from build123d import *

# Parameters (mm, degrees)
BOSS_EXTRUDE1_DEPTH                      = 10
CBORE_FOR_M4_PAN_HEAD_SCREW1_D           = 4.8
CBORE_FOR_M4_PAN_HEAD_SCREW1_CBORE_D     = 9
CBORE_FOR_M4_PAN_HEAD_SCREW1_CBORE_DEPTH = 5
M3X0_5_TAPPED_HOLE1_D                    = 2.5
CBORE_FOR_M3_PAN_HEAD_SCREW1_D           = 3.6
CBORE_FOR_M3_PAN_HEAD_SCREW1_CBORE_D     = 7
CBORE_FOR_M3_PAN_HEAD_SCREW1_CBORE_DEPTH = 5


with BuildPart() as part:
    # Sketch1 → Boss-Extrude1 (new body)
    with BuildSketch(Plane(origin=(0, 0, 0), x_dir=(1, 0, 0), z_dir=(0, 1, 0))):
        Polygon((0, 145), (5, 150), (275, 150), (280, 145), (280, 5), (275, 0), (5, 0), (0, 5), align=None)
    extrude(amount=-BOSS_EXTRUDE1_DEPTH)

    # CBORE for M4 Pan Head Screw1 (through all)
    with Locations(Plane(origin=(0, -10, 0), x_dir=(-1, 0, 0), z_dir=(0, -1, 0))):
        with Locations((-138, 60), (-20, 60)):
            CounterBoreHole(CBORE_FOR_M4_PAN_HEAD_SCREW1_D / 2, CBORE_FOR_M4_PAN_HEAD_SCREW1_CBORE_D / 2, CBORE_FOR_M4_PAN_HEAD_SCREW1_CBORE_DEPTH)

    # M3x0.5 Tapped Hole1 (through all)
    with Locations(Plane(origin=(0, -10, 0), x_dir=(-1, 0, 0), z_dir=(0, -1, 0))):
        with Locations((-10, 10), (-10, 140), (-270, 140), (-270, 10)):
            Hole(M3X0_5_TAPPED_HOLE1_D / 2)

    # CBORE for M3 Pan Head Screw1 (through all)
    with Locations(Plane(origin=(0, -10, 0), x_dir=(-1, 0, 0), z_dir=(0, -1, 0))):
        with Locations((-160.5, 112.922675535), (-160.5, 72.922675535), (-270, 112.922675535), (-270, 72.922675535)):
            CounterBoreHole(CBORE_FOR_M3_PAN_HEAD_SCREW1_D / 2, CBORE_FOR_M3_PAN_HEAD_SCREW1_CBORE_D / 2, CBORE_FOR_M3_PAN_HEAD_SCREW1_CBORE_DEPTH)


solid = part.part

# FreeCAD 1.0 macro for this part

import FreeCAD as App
import Part
import Sketcher
from FreeCAD import Vector
Q = App.Units.Quantity


def add_polygon(sketch, points):
    """Adds a closed chain of lines whose ends are joined by coincident constraints."""
    first, n = sketch.GeometryCount, len(points)
    for a, b in zip(points, points[1:] + points[:1]):
        sketch.addGeometry(Part.LineSegment(App.Vector(*a, 0), App.Vector(*b, 0)), False)
    for i in range(n):
        sketch.addConstraint(Sketcher.Constraint("Coincident", first + i, 2, first + (i + 1) % n, 1))

doc = App.newDocument("Part")
body = doc.addObject("PartDesign::Body", "Body")

# Sketch on XZ plane
sketch1 = body.newObject("Sketcher::SketchObject", "Sketch")
sketch1.AttachmentSupport = (doc.getObject("XZ_Plane"), [""])
sketch1.MapMode = "FlatFace"
add_polygon(sketch1, [(5, -150), (0, -145), (0, -5), (5, 0), (275, 0), (280, -5), (280, -145), (275, -150)])  # lines 0-7
sketch1.addConstraint([
    Sketcher.Constraint("Vertical", 1),
    Sketcher.Constraint("Horizontal", 3),
    Sketcher.Constraint("Vertical", 5),
    Sketcher.Constraint("Horizontal", 7),
    Sketcher.Constraint("PointOnObject", 0, 2, -2),
    Sketcher.Constraint("PointOnObject", 2, 2, -1),
    Sketcher.Constraint("Perpendicular", 0, 2),
    Sketcher.Constraint("Perpendicular", 2, 4),
    Sketcher.Constraint("Perpendicular", 4, 6),
    Sketcher.Constraint("Horizontal", 1, 2, 4, 2),
    Sketcher.Constraint("Horizontal", 0, 2, 5, 2),
    Sketcher.Constraint("Vertical", 3, 2, 6, 2),
    Sketcher.Constraint("Vertical", 2, 2, 7, 2),
    Sketcher.Constraint("DistanceX", 3, 1, 3, 2, Q("270 mm")),
    Sketcher.Constraint("DistanceY", 1, 1, 1, 2, Q("140 mm")),
    Sketcher.Constraint("DistanceY", 0, 2, -1, 1, Q("145 mm")),
])
pad1 = body.newObject("PartDesign::Pad", "Pad")
pad1.Profile = sketch1
pad1.Length = 10

# Sketch on XZ plane
sketch2 = body.newObject("Sketcher::SketchObject", "Sketch001")
sketch2.AttachmentSupport = (doc.getObject("XZ_Plane"), [""])
sketch2.MapMode = "FlatFace"
sketch2.AttachmentOffset = App.Placement(Vector(0, 0, 10), App.Rotation())
sketch2.addGeometry([
    Part.Circle(Vector(138, -60, 0), Vector(0, 0, 1), 2.4),
    Part.Circle(Vector(20, -60, 0), Vector(0, 0, 1), 2.4),
], False)
sketch2.addConstraint([
    Sketcher.Constraint("Equal", 0, 1),
    Sketcher.Constraint("Horizontal", 0, 3, 1, 3),
    Sketcher.Constraint("Diameter", 0, Q("4.8 mm")),
    Sketcher.Constraint("DistanceX", -1, 1, 0, 3, Q("138 mm")),
    Sketcher.Constraint("DistanceY", 0, 3, -1, 1, Q("60 mm")),
    Sketcher.Constraint("DistanceX", -1, 1, 1, 3, Q("20 mm")),
])
doc.recompute()
hole = body.newObject("PartDesign::Hole", "Hole")
hole.Profile = sketch2
hole.ThreadType = "None"
hole.Diameter = 4.8
hole.DepthType = "ThroughAll"
hole.HoleCutType = "Counterbore"
hole.HoleCutDiameter = 9
hole.HoleCutDepth = 5

# Sketch on XZ plane
sketch3 = body.newObject("Sketcher::SketchObject", "Sketch002")
sketch3.AttachmentSupport = (doc.getObject("XZ_Plane"), [""])
sketch3.MapMode = "FlatFace"
sketch3.AttachmentOffset = App.Placement(Vector(0, 0, 10), App.Rotation())
sketch3.addGeometry([
    Part.Circle(Vector(10, -10, 0), Vector(0, 0, 1), 1.25),
    Part.Circle(Vector(10, -140, 0), Vector(0, 0, 1), 1.25),
    Part.Circle(Vector(270, -140, 0), Vector(0, 0, 1), 1.25),
    Part.Circle(Vector(270, -10, 0), Vector(0, 0, 1), 1.25),
], False)
sketch3.addConstraint([
    Sketcher.Constraint("Equal", 0, 1),
    Sketcher.Constraint("Equal", 1, 2),
    Sketcher.Constraint("Equal", 2, 3),
    Sketcher.Constraint("Horizontal", 1, 3, 2, 3),
    Sketcher.Constraint("Horizontal", 0, 3, 3, 3),
    Sketcher.Constraint("Vertical", 0, 3, 1, 3),
    Sketcher.Constraint("Vertical", 2, 3, 3, 3),
    Sketcher.Constraint("Diameter", 0, Q("2.5 mm")),
    Sketcher.Constraint("DistanceX", -1, 1, 0, 3, Q("10 mm")),
    Sketcher.Constraint("DistanceY", 0, 3, -1, 1, Q("10 mm")),
    Sketcher.Constraint("DistanceY", 1, 3, -1, 1, Q("140 mm")),
    Sketcher.Constraint("DistanceX", -1, 1, 2, 3, Q("270 mm")),
])
doc.recompute()
hole2 = body.newObject("PartDesign::Hole", "Hole001")
hole2.Profile = sketch3
hole2.ThreadType = "None"
hole2.Diameter = 2.5
hole2.DepthType = "ThroughAll"

# Sketch on XZ plane
sketch4 = body.newObject("Sketcher::SketchObject", "Sketch003")
sketch4.AttachmentSupport = (doc.getObject("XZ_Plane"), [""])
sketch4.MapMode = "FlatFace"
sketch4.AttachmentOffset = App.Placement(Vector(0, 0, 10), App.Rotation())
sketch4.addGeometry([
    Part.Circle(Vector(160.5, -112.922676, 0), Vector(0, 0, 1), 1.8),
    Part.Circle(Vector(160.5, -72.922676, 0), Vector(0, 0, 1), 1.8),
    Part.Circle(Vector(270, -112.922676, 0), Vector(0, 0, 1), 1.8),
    Part.Circle(Vector(270, -72.922676, 0), Vector(0, 0, 1), 1.8),
], False)
sketch4.addConstraint([
    Sketcher.Constraint("Equal", 0, 1),
    Sketcher.Constraint("Equal", 1, 2),
    Sketcher.Constraint("Equal", 2, 3),
    Sketcher.Constraint("Horizontal", 0, 3, 2, 3),
    Sketcher.Constraint("Horizontal", 1, 3, 3, 3),
    Sketcher.Constraint("Vertical", 0, 3, 1, 3),
    Sketcher.Constraint("Vertical", 2, 3, 3, 3),
    Sketcher.Constraint("Diameter", 0, Q("3.6 mm")),
    Sketcher.Constraint("DistanceX", -1, 1, 2, 3, Q("270 mm")),
    Sketcher.Constraint("DistanceY", 0, 3, 1, 3, Q("40 mm")),
    Sketcher.Constraint("DistanceX", -1, 1, 0, 3, Q("160.5 mm")),
    Sketcher.Constraint("DistanceY", 0, 3, -1, 1, Q("112.922676 mm")),
])
doc.recompute()
hole3 = body.newObject("PartDesign::Hole", "Hole002")
hole3.Profile = sketch4
hole3.ThreadType = "None"
hole3.Diameter = 3.6
hole3.DepthType = "ThroughAll"
hole3.HoleCutType = "Counterbore"
hole3.HoleCutDiameter = 7
hole3.HoleCutDepth = 5

doc.recompute()
